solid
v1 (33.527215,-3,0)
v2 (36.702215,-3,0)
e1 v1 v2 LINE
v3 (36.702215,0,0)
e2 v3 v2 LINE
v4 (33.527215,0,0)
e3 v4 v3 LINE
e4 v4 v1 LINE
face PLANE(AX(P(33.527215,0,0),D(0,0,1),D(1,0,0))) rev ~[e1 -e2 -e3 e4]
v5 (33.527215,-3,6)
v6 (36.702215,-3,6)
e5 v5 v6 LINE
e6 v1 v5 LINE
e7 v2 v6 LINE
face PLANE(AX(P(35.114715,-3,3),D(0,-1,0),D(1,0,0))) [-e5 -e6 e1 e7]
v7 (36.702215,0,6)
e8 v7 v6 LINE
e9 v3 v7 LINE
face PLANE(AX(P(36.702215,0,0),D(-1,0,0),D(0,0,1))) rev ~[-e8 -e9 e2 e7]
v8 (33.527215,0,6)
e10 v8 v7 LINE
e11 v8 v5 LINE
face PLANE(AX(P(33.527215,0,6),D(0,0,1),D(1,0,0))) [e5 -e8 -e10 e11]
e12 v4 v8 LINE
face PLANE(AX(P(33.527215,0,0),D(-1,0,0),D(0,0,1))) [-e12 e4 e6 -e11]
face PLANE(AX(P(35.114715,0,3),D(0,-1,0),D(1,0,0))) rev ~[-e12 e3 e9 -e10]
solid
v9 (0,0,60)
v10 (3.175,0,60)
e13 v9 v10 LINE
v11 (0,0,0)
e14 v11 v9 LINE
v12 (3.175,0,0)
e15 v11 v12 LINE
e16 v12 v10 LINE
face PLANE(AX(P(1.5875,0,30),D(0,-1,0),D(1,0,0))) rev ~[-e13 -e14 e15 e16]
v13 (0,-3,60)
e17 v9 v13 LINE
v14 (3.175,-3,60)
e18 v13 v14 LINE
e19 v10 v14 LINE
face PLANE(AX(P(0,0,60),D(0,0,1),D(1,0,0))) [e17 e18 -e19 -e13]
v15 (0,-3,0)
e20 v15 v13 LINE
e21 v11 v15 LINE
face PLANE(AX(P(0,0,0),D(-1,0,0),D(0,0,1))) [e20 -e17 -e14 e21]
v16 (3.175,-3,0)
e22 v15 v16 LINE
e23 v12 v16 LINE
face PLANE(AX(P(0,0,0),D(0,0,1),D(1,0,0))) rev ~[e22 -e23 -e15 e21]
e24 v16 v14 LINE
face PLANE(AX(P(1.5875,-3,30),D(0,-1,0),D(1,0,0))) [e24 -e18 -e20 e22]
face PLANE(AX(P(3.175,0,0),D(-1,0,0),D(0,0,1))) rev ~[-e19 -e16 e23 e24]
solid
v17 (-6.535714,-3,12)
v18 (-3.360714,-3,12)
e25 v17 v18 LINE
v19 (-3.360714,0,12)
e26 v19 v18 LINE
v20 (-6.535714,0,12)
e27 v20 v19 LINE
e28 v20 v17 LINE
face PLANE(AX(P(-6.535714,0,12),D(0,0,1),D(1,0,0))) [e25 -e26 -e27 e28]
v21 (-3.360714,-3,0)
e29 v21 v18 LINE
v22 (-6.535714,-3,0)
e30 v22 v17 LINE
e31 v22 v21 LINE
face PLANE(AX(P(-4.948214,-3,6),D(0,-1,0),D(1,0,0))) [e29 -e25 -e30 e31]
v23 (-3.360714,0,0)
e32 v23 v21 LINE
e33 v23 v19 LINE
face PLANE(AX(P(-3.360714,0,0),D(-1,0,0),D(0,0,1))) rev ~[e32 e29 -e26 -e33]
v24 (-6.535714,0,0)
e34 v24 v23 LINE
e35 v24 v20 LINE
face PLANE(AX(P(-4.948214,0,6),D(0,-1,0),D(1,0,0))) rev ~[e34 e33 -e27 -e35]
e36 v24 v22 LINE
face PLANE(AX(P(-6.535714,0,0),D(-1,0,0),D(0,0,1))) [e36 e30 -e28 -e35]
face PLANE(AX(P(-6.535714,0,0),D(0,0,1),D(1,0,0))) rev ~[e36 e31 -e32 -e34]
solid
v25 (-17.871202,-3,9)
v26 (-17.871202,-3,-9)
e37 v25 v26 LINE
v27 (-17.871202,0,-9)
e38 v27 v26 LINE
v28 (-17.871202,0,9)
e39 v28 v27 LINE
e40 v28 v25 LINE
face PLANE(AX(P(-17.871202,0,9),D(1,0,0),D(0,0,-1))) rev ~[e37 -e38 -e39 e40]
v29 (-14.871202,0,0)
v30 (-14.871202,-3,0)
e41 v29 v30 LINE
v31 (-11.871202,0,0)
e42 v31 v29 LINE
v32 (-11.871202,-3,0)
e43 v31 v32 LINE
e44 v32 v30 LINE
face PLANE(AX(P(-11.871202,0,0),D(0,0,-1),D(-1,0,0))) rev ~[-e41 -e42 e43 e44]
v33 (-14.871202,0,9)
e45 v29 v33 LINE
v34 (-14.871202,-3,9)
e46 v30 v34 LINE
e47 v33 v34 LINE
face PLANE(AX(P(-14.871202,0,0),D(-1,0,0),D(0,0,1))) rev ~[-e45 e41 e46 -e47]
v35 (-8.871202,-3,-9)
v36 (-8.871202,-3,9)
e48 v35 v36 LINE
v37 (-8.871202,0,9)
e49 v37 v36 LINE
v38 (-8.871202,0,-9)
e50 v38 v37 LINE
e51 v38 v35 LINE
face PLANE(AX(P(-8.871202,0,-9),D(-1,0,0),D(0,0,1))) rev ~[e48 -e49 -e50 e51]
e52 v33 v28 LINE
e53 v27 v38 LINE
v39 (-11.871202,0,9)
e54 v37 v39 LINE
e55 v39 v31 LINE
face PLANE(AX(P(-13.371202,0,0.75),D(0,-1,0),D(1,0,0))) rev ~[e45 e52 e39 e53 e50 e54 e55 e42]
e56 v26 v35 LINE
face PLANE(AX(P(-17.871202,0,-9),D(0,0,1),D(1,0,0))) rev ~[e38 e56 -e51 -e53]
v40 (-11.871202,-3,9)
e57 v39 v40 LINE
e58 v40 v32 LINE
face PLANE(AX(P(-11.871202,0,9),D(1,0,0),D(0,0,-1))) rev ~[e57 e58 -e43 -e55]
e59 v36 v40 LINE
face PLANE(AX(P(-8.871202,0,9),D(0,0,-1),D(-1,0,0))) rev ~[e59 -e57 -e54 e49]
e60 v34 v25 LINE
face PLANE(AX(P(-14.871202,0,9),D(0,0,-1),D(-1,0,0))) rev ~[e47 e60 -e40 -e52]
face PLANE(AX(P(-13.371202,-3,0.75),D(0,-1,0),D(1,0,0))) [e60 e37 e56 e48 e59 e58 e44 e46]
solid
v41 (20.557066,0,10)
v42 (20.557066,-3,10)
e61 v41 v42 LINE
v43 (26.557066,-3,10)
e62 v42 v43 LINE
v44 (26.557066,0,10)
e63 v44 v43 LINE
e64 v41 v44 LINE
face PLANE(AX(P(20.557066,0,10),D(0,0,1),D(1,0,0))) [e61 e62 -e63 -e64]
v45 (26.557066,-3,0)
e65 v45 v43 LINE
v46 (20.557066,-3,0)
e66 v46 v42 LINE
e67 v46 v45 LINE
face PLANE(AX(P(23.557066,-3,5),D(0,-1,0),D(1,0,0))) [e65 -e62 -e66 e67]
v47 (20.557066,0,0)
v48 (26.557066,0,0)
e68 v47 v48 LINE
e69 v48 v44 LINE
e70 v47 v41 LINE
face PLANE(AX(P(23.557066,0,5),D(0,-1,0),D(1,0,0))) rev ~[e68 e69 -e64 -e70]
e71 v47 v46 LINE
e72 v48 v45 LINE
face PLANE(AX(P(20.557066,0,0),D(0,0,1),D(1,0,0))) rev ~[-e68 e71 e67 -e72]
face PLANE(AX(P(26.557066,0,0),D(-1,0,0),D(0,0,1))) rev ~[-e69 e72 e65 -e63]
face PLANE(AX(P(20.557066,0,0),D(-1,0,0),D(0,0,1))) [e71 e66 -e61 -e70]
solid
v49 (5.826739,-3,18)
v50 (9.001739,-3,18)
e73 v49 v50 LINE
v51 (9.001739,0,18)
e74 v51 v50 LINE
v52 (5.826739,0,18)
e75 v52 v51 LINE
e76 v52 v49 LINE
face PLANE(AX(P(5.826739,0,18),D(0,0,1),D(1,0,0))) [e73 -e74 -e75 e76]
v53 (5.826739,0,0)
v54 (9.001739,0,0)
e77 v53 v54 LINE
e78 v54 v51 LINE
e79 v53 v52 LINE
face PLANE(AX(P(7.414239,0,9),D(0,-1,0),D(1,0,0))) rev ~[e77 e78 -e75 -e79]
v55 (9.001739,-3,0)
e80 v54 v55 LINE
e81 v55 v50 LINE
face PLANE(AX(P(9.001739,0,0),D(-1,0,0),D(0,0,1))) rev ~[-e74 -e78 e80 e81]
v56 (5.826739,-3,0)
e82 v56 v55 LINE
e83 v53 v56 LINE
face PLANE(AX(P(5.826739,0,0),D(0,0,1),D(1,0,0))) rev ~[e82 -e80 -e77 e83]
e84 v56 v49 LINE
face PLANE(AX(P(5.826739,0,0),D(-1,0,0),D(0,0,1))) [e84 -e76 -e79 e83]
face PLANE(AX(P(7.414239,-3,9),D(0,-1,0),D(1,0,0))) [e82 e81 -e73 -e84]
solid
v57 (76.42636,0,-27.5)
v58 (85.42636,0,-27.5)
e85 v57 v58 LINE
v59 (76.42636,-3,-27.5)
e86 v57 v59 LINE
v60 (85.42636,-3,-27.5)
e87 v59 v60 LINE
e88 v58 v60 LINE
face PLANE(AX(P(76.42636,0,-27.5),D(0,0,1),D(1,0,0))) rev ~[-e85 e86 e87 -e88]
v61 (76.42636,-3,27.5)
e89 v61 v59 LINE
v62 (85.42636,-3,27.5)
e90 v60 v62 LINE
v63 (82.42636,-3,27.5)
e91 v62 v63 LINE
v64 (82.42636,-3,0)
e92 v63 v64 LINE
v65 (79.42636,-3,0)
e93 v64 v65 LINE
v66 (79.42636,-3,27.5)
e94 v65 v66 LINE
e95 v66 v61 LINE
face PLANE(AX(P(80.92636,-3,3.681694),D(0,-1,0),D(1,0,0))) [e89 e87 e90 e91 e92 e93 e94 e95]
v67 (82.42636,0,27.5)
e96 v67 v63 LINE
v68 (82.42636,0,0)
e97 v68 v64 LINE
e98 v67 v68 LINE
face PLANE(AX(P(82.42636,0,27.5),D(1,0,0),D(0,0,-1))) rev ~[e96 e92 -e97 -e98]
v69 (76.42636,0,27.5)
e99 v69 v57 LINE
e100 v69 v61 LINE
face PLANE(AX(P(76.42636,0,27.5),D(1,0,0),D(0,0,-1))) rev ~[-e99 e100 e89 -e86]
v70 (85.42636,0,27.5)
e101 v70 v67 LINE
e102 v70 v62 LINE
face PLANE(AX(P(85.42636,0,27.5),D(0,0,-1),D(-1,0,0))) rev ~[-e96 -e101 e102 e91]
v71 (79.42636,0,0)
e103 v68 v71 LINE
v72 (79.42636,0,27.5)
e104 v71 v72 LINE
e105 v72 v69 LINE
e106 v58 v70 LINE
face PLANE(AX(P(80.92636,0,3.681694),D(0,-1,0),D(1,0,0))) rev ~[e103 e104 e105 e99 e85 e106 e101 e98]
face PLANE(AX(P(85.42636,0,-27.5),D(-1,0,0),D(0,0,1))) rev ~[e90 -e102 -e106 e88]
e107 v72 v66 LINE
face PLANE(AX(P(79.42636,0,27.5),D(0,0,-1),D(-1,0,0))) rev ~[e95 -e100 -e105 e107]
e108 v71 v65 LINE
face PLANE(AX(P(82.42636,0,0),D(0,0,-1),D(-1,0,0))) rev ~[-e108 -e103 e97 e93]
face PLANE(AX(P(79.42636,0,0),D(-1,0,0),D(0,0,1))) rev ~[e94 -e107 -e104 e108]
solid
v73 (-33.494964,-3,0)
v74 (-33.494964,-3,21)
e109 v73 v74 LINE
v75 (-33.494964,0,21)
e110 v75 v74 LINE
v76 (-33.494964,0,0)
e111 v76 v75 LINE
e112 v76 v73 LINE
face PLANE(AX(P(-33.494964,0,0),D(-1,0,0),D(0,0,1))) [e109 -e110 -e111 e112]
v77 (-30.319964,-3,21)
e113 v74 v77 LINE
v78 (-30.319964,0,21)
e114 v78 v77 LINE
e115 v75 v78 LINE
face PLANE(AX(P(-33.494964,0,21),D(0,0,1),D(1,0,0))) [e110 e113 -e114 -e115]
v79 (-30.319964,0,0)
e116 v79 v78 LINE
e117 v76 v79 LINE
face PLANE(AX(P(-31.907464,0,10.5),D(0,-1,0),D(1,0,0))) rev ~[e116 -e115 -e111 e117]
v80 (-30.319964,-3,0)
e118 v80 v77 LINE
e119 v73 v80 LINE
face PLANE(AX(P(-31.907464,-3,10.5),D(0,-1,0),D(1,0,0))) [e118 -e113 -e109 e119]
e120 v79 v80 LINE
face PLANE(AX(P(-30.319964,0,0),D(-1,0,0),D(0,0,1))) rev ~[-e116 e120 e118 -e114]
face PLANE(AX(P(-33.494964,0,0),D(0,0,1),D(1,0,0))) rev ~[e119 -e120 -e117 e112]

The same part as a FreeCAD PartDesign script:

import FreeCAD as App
import Part
import Sketcher
from FreeCAD import Vector
Q = App.Units.Quantity


def add_polygon(sketch, points):
    """Adds a closed chain of lines whose ends are joined by coincident constraints."""
    first, n = sketch.GeometryCount, len(points)
    for a, b in zip(points, points[1:] + points[:1]):
        sketch.addGeometry(Part.LineSegment(App.Vector(*a, 0), App.Vector(*b, 0)), False)
    for i in range(n):
        sketch.addConstraint(Sketcher.Constraint("Coincident", first + i, 2, first + (i + 1) % n, 1))

doc = App.newDocument("Part")
body = doc.addObject("PartDesign::Body", "Body")

# Sketch on XZ plane
sketch1 = body.newObject("Sketcher::SketchObject", "Sketch")
sketch1.AttachmentSupport = (doc.getObject("XZ_Plane"), [""])
sketch1.MapMode = "FlatFace"
add_polygon(sketch1, [(0, 60), (0, 0), (3.2, 0), (3.2, 60)])  # lines 0-3
sketch1.addConstraint([
    Sketcher.Constraint("Vertical", 0),
    Sketcher.Constraint("Horizontal", 1),
    Sketcher.Constraint("Vertical", 2),
    Sketcher.Constraint("Horizontal", 3),
    Sketcher.Constraint("Coincident", 0, 2, -1, 1),
    Sketcher.Constraint("DistanceY", 0, 2, 0, 1, Q("60 mm")),
    Sketcher.Constraint("DistanceX", 1, 1, 1, 2, Q("3.175 mm")),
])
pad1 = body.newObject("PartDesign::Pad", "Pad")
pad1.Profile = sketch1
pad1.Length = 3
body2 = doc.addObject("PartDesign::Body", "Body001")

# Sketch on XZ plane
sketch2 = body2.newObject("Sketcher::SketchObject", "Sketch001")
sketch2.AttachmentSupport = (doc.getObject("XZ_Plane001"), [""])
sketch2.MapMode = "FlatFace"
add_polygon(sketch2, [(5.8, 18), (5.8, 0), (9, 0), (9, 18)])  # lines 0-3
sketch2.addConstraint([
    Sketcher.Constraint("Vertical", 0),
    Sketcher.Constraint("Horizontal", 1),
    Sketcher.Constraint("Vertical", 2),
    Sketcher.Constraint("Horizontal", 3),
    Sketcher.Constraint("PointOnObject", 0, 2, -1),
    Sketcher.Constraint("DistanceY", 0, 2, 0, 1, Q("18 mm")),
    Sketcher.Constraint("DistanceX", 1, 1, 1, 2, Q("3.175 mm")),
    Sketcher.Constraint("DistanceX", -1, 1, 0, 2, Q("5.826739 mm")),
])
pad2 = body2.newObject("PartDesign::Pad", "Pad001")
pad2.Profile = sketch2
pad2.Length = 3
body3 = doc.addObject("PartDesign::Body", "Body002")

# Sketch on XZ plane
sketch3 = body3.newObject("Sketcher::SketchObject", "Sketch002")
sketch3.AttachmentSupport = (doc.getObject("XZ_Plane002"), [""])
sketch3.MapMode = "FlatFace"
add_polygon(sketch3, [(21, 10), (21, 0), (27, 0), (27, 10)])  # lines 0-3
sketch3.addConstraint([
    Sketcher.Constraint("Vertical", 0),
    Sketcher.Constraint("Horizontal", 1),
    Sketcher.Constraint("Vertical", 2),
    Sketcher.Constraint("Horizontal", 3),
    Sketcher.Constraint("PointOnObject", 0, 2, -1),
    Sketcher.Constraint("DistanceX", 1, 1, 1, 2, Q("6 mm")),
    Sketcher.Constraint("DistanceY", 0, 2, 0, 1, Q("10 mm")),
    Sketcher.Constraint("DistanceX", -1, 1, 0, 2, Q("20.557066 mm")),
])
pad3 = body3.newObject("PartDesign::Pad", "Pad002")
pad3.Profile = sketch3
pad3.Length = 3
body4 = doc.addObject("PartDesign::Body", "Body003")

# Sketch on XZ plane
sketch4 = body4.newObject("Sketcher::SketchObject", "Sketch003")
sketch4.AttachmentSupport = (doc.getObject("XZ_Plane003"), [""])
sketch4.MapMode = "FlatFace"
add_polygon(sketch4, [(-6.5, 12), (-6.5, 0), (-3.4, 0), (-3.4, 12)])  # lines 0-3
sketch4.addConstraint([
    Sketcher.Constraint("Vertical", 0),
    Sketcher.Constraint("Horizontal", 1),
    Sketcher.Constraint("Vertical", 2),
    Sketcher.Constraint("Horizontal", 3),
    Sketcher.Constraint("PointOnObject", 0, 2, -1),
    Sketcher.Constraint("DistanceY", 0, 2, 0, 1, Q("12 mm")),
    Sketcher.Constraint("DistanceX", 1, 1, 1, 2, Q("3.175 mm")),
    Sketcher.Constraint("DistanceX", 0, 2, -1, 1, Q("6.535714 mm")),
])
pad4 = body4.newObject("PartDesign::Pad", "Pad003")
pad4.Profile = sketch4
pad4.Length = 3
body5 = doc.addObject("PartDesign::Body", "Body004")

# Sketch on XZ plane
sketch5 = body5.newObject("Sketcher::SketchObject", "Sketch004")
sketch5.AttachmentSupport = (doc.getObject("XZ_Plane004"), [""])
sketch5.MapMode = "FlatFace"
add_polygon(sketch5, [(33.5, 6), (33.5, 0), (36.7, 0), (36.7, 6)])  # lines 0-3
sketch5.addConstraint([
    Sketcher.Constraint("Vertical", 0),
    Sketcher.Constraint("Horizontal", 1),
    Sketcher.Constraint("Vertical", 2),
    Sketcher.Constraint("Horizontal", 3),
    Sketcher.Constraint("PointOnObject", 0, 2, -1),
    Sketcher.Constraint("DistanceY", 0, 2, 0, 1, Q("6 mm")),
    Sketcher.Constraint("DistanceX", 1, 1, 1, 2, Q("3.175 mm")),
    Sketcher.Constraint("DistanceX", -1, 1, 0, 2, Q("33.527215 mm")),
])
pad5 = body5.newObject("PartDesign::Pad", "Pad004")
pad5.Profile = sketch5
pad5.Length = 3
body6 = doc.addObject("PartDesign::Body", "Body005")

# Sketch on XZ plane
sketch6 = body6.newObject("Sketcher::SketchObject", "Sketch005")
sketch6.AttachmentSupport = (doc.getObject("XZ_Plane005"), [""])
sketch6.MapMode = "FlatFace"
add_polygon(sketch6, [(-8.9, -9), (-8.9, 9), (-11.9, 9), (-11.9, 0), (-14.9, 0), (-14.9, 9), (-17.9, 9), (-17.9, -9)])  # lines 0-7
sketch6.addConstraint([
    Sketcher.Constraint("Vertical", 0),
    Sketcher.Constraint("Horizontal", 1),
    Sketcher.Constraint("Vertical", 2),
    Sketcher.Constraint("Horizontal", 3),
    Sketcher.Constraint("Vertical", 4),
    Sketcher.Constraint("Horizontal", 5),
    Sketcher.Constraint("Vertical", 6),
    Sketcher.Constraint("Horizontal", 7),
    Sketcher.Constraint("PointOnObject", 2, 2, -1),
    Sketcher.Constraint("Horizontal", 1, 2, 4, 2),
    Sketcher.Constraint("Equal", 1, 3),
    Sketcher.Constraint("Equal", 3, 5),
    Sketcher.Constraint("Equal", 7, 2),
    Sketcher.Constraint("DistanceX", 1, 2, 1, 1, Q("3 mm")),
    Sketcher.Constraint("DistanceY", 0, 1, 0, 2, Q("18 mm")),
    Sketcher.Constraint("DistanceX", 5, 2, -1, 1, Q("17.871202 mm")),
])
pad6 = body6.newObject("PartDesign::Pad", "Pad005")
pad6.Profile = sketch6
pad6.Length = 3
body7 = doc.addObject("PartDesign::Body", "Body006")

# Sketch on XZ plane
sketch7 = body7.newObject("Sketcher::SketchObject", "Sketch006")
sketch7.AttachmentSupport = (doc.getObject("XZ_Plane006"), [""])
sketch7.MapMode = "FlatFace"
add_polygon(sketch7, [(-33.5, 21), (-33.5, 0), (-30.3, 0), (-30.3, 21)])  # lines 0-3
sketch7.addConstraint([
    Sketcher.Constraint("Vertical", 0),
    Sketcher.Constraint("Horizontal", 1),
    Sketcher.Constraint("Vertical", 2),
    Sketcher.Constraint("Horizontal", 3),
    Sketcher.Constraint("PointOnObject", 0, 2, -1),
    Sketcher.Constraint("DistanceY", 0, 2, 0, 1, Q("21 mm")),
    Sketcher.Constraint("DistanceX", 1, 1, 1, 2, Q("3.175 mm")),
    Sketcher.Constraint("DistanceX", 0, 2, -1, 1, Q("33.494964 mm")),
])
pad7 = body7.newObject("PartDesign::Pad", "Pad006")
pad7.Profile = sketch7
pad7.Length = 3
body8 = doc.addObject("PartDesign::Body", "Body007")

# Sketch on XZ plane
sketch8 = body8.newObject("Sketcher::SketchObject", "Sketch007")
sketch8.AttachmentSupport = (doc.getObject("XZ_Plane007"), [""])
sketch8.MapMode = "FlatFace"
add_polygon(sketch8, [(85.4, -27.5), (85.4, 27.5), (82.4, 27.5), (82.4, 0), (79.4, 0), (79.4, 27.5), (76.4, 27.5), (76.4, -27.5)])  # lines 0-7
sketch8.addConstraint([
    Sketcher.Constraint("Vertical", 0),
    Sketcher.Constraint("Horizontal", 1),
    Sketcher.Constraint("Vertical", 2),
    Sketcher.Constraint("Horizontal", 3),
    Sketcher.Constraint("Vertical", 4),
    Sketcher.Constraint("Horizontal", 5),
    Sketcher.Constraint("Vertical", 6),
    Sketcher.Constraint("Horizontal", 7),
    Sketcher.Constraint("PointOnObject", 2, 2, -1),
    Sketcher.Constraint("Horizontal", 1, 2, 4, 2),
    Sketcher.Constraint("Equal", 1, 3),
    Sketcher.Constraint("Equal", 3, 5),
    Sketcher.Constraint("DistanceX", 1, 2, 1, 1, Q("3 mm")),
    Sketcher.Constraint("DistanceY", 0, 1, 0, 2, Q("55 mm")),
    Sketcher.Constraint("DistanceY", 2, 2, 2, 1, Q("27.5 mm")),
    Sketcher.Constraint("DistanceX", -1, 1, 0, 2, Q("85.42636 mm")),
])
pad8 = body8.newObject("PartDesign::Pad", "Pad007")
pad8.Profile = sketch8
pad8.Length = 3

doc.recompute()
